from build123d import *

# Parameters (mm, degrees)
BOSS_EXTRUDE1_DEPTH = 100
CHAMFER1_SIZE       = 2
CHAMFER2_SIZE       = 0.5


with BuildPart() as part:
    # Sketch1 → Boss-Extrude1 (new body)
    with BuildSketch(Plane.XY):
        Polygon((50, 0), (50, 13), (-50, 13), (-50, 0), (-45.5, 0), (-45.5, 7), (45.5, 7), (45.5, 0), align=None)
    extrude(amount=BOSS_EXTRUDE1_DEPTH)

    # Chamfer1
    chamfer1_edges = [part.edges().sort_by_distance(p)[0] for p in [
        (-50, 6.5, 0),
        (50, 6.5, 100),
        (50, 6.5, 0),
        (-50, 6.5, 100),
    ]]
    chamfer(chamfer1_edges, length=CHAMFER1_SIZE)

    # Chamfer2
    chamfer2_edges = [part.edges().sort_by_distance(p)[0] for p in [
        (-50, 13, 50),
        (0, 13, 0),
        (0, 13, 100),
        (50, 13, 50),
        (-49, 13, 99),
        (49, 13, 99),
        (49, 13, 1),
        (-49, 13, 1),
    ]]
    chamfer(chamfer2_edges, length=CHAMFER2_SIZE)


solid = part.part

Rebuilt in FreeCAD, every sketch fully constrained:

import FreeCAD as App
import Part
import Sketcher
from FreeCAD import Vector
Q = App.Units.Quantity


def edges_at(feature, points):
    """Names of the edges that pass closest to the given points."""
    edges = feature.Shape.Edges
    near = lambda p: min(range(len(edges)), key=lambda i: edges[i].distToShape(Part.Vertex(*p))[0])
    return sorted({f"Edge{near(p) + 1}" for p in points})

doc = App.newDocument("Part")
body = doc.addObject("PartDesign::Body", "Body")

# Sketch on XY plane
sketch1 = body.newObject("Sketcher::SketchObject", "Sketch")
sketch1.AttachmentSupport = (doc.getObject("XY_Plane"), [""])
sketch1.MapMode = "FlatFace"
sketch1.addGeometry(Part.LineSegment(Vector(50, 0, 0), Vector(50, 13, 0)), False)
sketch1.addGeometry(Part.LineSegment(Vector(50, 13, 0), Vector(-50, 13, 0)), False)
sketch1.addGeometry(Part.LineSegment(Vector(-50, 13, 0), Vector(-50, 0, 0)), False)
sketch1.addGeometry(Part.LineSegment(Vector(-50, 0, 0), Vector(-45.5, 0, 0)), False)
sketch1.addGeometry(Part.LineSegment(Vector(-45.5, 0, 0), Vector(-45.5, 7, 0)), False)
sketch1.addGeometry(Part.LineSegment(Vector(-45.5, 7, 0), Vector(45.5, 7, 0)), False)
sketch1.addGeometry(Part.LineSegment(Vector(45.5, 7, 0), Vector(45.5, 0, 0)), False)
sketch1.addGeometry(Part.LineSegment(Vector(45.5, 0, 0), Vector(50, 0, 0)), False)
sketch1.addConstraint(Sketcher.Constraint("Coincident", 0, 2, 1, 1))
sketch1.addConstraint(Sketcher.Constraint("Coincident", 1, 2, 2, 1))
sketch1.addConstraint(Sketcher.Constraint("Coincident", 2, 2, 3, 1))
sketch1.addConstraint(Sketcher.Constraint("Coincident", 3, 2, 4, 1))
sketch1.addConstraint(Sketcher.Constraint("Coincident", 4, 2, 5, 1))
sketch1.addConstraint(Sketcher.Constraint("Coincident", 5, 2, 6, 1))
sketch1.addConstraint(Sketcher.Constraint("Coincident", 6, 2, 7, 1))
sketch1.addConstraint(Sketcher.Constraint("Coincident", 7, 2, 0, 1))
sketch1.addConstraint(Sketcher.Constraint("Vertical", 0))
sketch1.addConstraint(Sketcher.Constraint("Horizontal", 1))
sketch1.addConstraint(Sketcher.Constraint("Vertical", 2))
sketch1.addConstraint(Sketcher.Constraint("Horizontal", 3))
sketch1.addConstraint(Sketcher.Constraint("Vertical", 4))
sketch1.addConstraint(Sketcher.Constraint("Horizontal", 5))
sketch1.addConstraint(Sketcher.Constraint("Vertical", 6))
sketch1.addConstraint(Sketcher.Constraint("Horizontal", 7))
sketch1.addConstraint(Sketcher.Constraint("Symmetric", 3, 2, 6, 2, -1, 1))
sketch1.addConstraint(Sketcher.Constraint("Symmetric", 2, 2, 7, 2, -2))
sketch1.addConstraint(Sketcher.Constraint("DistanceX", 1, 2, 1, 1, Q("100 mm")))
sketch1.addConstraint(Sketcher.Constraint("DistanceX", 5, 1, 5, 2, Q("91 mm")))
sketch1.addConstraint(Sketcher.Constraint("DistanceY", 0, 1, 0, 2, Q("13 mm")))
sketch1.addConstraint(Sketcher.Constraint("DistanceY", 4, 1, 4, 2, Q("7 mm")))
pad1 = body.newObject("PartDesign::Pad", "Pad")
pad1.Profile = sketch1
pad1.Length = 100
doc.recompute()

chamfer = body.newObject("PartDesign::Chamfer", "Chamfer")
chamfer.Base = (pad1, edges_at(pad1, [
    (-50, 6.5, 0),
    (50, 6.5, 100),
    (50, 6.5, 0),
    (-50, 6.5, 100),
]))
chamfer.Size = 2
doc.recompute()

chamfer2 = body.newObject("PartDesign::Chamfer", "Chamfer001")
chamfer2.Base = (chamfer, edges_at(chamfer, [
    (-50, 13, 50),
    (0, 13, 0),
    (0, 13, 100),
    (50, 13, 50),
    (-49, 13, 99),
    (49, 13, 99),
    (49, 13, 1),
    (-49, 13, 1),
]))
chamfer2.Size = 0.5

doc.recompute()
